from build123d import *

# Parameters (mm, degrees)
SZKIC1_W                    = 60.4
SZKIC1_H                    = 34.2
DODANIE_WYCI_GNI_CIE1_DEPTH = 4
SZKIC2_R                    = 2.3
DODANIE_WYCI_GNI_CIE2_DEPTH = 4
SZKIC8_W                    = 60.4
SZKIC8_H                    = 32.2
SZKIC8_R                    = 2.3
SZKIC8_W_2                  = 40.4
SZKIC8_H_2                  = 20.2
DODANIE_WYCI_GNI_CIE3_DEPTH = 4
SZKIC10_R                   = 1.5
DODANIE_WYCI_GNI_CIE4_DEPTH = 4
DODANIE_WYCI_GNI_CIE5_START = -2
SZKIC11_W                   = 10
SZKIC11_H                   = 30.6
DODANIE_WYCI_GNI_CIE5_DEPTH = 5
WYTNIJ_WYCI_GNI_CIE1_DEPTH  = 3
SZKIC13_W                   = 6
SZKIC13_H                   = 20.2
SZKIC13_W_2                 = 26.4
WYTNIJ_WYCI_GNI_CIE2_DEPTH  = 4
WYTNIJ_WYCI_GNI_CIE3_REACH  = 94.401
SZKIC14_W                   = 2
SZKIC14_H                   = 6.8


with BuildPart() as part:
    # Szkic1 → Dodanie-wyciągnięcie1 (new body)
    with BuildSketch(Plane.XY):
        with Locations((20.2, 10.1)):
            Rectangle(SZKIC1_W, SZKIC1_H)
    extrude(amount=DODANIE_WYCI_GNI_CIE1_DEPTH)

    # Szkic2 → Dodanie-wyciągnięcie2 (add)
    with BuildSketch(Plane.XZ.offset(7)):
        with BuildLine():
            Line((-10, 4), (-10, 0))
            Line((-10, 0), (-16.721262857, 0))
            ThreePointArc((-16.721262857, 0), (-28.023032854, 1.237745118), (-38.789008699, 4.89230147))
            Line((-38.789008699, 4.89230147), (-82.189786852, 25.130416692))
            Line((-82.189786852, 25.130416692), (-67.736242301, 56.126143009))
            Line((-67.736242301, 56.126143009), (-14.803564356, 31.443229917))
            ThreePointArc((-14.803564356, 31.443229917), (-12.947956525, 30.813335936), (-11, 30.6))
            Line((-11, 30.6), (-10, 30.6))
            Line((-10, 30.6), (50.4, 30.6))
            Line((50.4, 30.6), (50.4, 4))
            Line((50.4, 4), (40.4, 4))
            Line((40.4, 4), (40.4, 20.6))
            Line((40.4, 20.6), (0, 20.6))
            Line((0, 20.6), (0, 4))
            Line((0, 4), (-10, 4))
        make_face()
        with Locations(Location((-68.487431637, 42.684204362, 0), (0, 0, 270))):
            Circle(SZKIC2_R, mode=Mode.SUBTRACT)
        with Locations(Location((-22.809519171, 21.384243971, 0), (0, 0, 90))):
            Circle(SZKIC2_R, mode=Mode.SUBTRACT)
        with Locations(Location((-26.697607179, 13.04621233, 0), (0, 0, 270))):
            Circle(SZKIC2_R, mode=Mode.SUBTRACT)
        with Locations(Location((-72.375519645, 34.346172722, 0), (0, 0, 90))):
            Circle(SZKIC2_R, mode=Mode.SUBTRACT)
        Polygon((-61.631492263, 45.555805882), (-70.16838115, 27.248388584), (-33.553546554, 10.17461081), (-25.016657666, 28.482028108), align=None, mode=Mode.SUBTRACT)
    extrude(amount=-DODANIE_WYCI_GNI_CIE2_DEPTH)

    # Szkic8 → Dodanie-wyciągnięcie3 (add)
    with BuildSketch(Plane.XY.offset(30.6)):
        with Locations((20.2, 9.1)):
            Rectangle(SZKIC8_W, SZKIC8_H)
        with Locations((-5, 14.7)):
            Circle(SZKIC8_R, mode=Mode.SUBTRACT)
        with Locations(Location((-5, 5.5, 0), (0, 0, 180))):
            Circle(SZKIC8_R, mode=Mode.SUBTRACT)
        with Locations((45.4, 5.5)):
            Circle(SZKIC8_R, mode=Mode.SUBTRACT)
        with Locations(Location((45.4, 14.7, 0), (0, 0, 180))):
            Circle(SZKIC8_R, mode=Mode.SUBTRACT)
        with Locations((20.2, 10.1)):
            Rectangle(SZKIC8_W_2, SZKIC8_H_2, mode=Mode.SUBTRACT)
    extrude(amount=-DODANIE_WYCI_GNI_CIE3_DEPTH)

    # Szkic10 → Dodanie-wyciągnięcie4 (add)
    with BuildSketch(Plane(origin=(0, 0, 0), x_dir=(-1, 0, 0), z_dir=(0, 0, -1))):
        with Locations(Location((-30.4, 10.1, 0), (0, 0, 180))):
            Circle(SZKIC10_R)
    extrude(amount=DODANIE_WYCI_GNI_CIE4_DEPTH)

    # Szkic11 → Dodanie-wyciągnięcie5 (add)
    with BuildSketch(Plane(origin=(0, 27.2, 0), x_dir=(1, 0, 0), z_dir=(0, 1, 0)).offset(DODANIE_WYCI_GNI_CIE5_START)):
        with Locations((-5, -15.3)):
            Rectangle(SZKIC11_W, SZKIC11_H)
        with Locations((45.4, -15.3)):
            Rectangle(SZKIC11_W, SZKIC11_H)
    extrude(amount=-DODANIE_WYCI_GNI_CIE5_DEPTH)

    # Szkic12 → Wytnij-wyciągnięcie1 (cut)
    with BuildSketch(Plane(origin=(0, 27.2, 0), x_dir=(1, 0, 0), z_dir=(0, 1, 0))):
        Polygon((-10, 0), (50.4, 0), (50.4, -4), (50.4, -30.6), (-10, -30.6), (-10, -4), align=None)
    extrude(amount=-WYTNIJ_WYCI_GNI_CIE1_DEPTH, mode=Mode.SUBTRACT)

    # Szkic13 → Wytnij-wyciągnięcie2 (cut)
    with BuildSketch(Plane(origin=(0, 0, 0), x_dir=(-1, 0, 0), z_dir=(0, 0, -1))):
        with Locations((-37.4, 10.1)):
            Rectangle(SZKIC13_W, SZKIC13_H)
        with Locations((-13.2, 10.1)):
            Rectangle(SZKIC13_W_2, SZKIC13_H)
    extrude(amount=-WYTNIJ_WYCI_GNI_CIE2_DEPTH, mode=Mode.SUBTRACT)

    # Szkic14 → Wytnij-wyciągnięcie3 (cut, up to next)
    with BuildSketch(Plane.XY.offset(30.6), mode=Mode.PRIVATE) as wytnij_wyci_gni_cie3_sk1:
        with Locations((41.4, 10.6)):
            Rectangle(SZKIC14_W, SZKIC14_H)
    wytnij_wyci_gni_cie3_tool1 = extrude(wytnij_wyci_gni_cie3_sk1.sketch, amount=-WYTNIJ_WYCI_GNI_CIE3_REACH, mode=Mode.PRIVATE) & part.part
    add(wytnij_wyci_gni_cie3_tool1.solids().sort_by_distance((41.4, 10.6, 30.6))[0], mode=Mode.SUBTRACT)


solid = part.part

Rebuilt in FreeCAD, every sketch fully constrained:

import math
import FreeCAD as App
import Part
import Sketcher

V = App.Vector
Q = App.Units.Quantity

doc = App.newDocument("Part")
body = doc.addObject("PartDesign::Body", "Body")

# Sketch on XY plane
sketch1 = doc.addObject("Sketcher::SketchObject", "Sketch")
body.addObject(sketch1)
sketch1.AttachmentSupport = (doc.XY_Plane, [""])
sketch1.MapMode = "FlatFace"
sketch1.addGeometry(Part.LineSegment(V(-10, 27.2, 0), V(-10, -7, 0)), False)
sketch1.addGeometry(Part.LineSegment(V(-10, -7, 0), V(50.4, -7, 0)), False)
sketch1.addGeometry(Part.LineSegment(V(50.4, -7, 0), V(50.4, 27.2, 0)), False)
sketch1.addGeometry(Part.LineSegment(V(50.4, 27.2, 0), V(-10, 27.2, 0)), False)
sketch1.addConstraint(Sketcher.Constraint("Coincident", 0, 2, 1, 1))
sketch1.addConstraint(Sketcher.Constraint("Coincident", 1, 2, 2, 1))
sketch1.addConstraint(Sketcher.Constraint("Coincident", 2, 2, 3, 1))
sketch1.addConstraint(Sketcher.Constraint("Coincident", 3, 2, 0, 1))
sketch1.addConstraint(Sketcher.Constraint("Vertical", 0))
sketch1.addConstraint(Sketcher.Constraint("Horizontal", 1))
sketch1.addConstraint(Sketcher.Constraint("Vertical", 2))
sketch1.addConstraint(Sketcher.Constraint("Horizontal", 3))
sketch1.addConstraint(Sketcher.Constraint("DistanceX", 1, 1, 1, 2, 60.4))
sketch1.addConstraint(Sketcher.Constraint("DistanceY", 0, 2, 0, 1, 34.2))
sketch1.addConstraint(Sketcher.Constraint("DistanceX", 0, 2, -1, 1, 10.0))
sketch1.addConstraint(Sketcher.Constraint("DistanceY", 0, 2, -1, 1, 7.0))
pad1 = doc.addObject("PartDesign::Pad", "Pad")
body.addObject(pad1)
pad1.Profile = sketch1
pad1.Length = 4

# Sketch on XZ plane
sketch2 = doc.addObject("Sketcher::SketchObject", "Sketch001")
body.addObject(sketch2)
sketch2.AttachmentSupport = (doc.XZ_Plane, [""])
sketch2.MapMode = "FlatFace"
sketch2.AttachmentOffset = App.Placement(V(0, 0, 7), App.Rotation())
sketch2.addGeometry(Part.LineSegment(V(-10, 0, 0), V(-10, 4, 0)), False)
sketch2.addGeometry(Part.LineSegment(V(-10, 4, 0), V(0, 4, 0)), False)
sketch2.addGeometry(Part.LineSegment(V(0, 4, 0), V(0, 20.6, 0)), False)
sketch2.addGeometry(Part.LineSegment(V(0, 20.6, 0), V(40.4, 20.6, 0)), False)
sketch2.addGeometry(Part.LineSegment(V(40.4, 20.6, 0), V(40.4, 4, 0)), False)
sketch2.addGeometry(Part.LineSegment(V(40.4, 4, 0), V(50.4, 4, 0)), False)
sketch2.addGeometry(Part.LineSegment(V(50.4, 4, 0), V(50.4, 30.6, 0)), False)
sketch2.addGeometry(Part.LineSegment(V(50.4, 30.6, 0), V(-11, 30.6, 0)), False)
sketch2.addGeometry(Part.ArcOfCircle(Part.Circle(V(-11, 39.6, 0), V(0, 0, 1), 9), math.radians(-115), math.radians(-90)), False)
sketch2.addGeometry(Part.LineSegment(V(-14.803564, 31.44323, 0), V(-67.736242, 56.126143, 0)), False)
sketch2.addGeometry(Part.LineSegment(V(-67.736242, 56.126143, 0), V(-82.189787, 25.130417, 0)), False)
sketch2.addGeometry(Part.LineSegment(V(-82.189787, 25.130417, 0), V(-38.789009, 4.892301, 0)), False)
sketch2.addGeometry(Part.ArcOfCircle(Part.Circle(V(-16.721263, 52.216735, 0), V(0, 0, 1), 52.216735), math.radians(-115), math.radians(-90)), False)
sketch2.addGeometry(Part.LineSegment(V(-16.721263, 0, 0), V(-10, 0, 0)), False)
sketch2.addGeometry(Part.Circle(V(-26.697607, 13.046212, 0), V(0, 0, 1), 2.3), False)
sketch2.addGeometry(Part.Circle(V(-22.809519, 21.384244, 0), V(0, 0, 1), 2.3), False)
sketch2.addGeometry(Part.LineSegment(V(-61.631492, 45.555806, 0), V(-25.016658, 28.482028, 0)), False)
sketch2.addGeometry(Part.LineSegment(V(-25.016658, 28.482028, 0), V(-33.553547, 10.174611, 0)), False)
sketch2.addGeometry(Part.LineSegment(V(-33.553547, 10.174611, 0), V(-70.168381, 27.248389, 0)), False)
sketch2.addGeometry(Part.LineSegment(V(-70.168381, 27.248389, 0), V(-61.631492, 45.555806, 0)), False)
sketch2.addGeometry(Part.Circle(V(-72.37552, 34.346173, 0), V(0, 0, 1), 2.3), False)
sketch2.addGeometry(Part.Circle(V(-68.487432, 42.684204, 0), V(0, 0, 1), 2.3), False)
sketch2.addConstraint(Sketcher.Constraint("Coincident", 0, 2, 1, 1))
sketch2.addConstraint(Sketcher.Constraint("Coincident", 1, 2, 2, 1))
sketch2.addConstraint(Sketcher.Constraint("Coincident", 2, 2, 3, 1))
sketch2.addConstraint(Sketcher.Constraint("Coincident", 3, 2, 4, 1))
sketch2.addConstraint(Sketcher.Constraint("Coincident", 4, 2, 5, 1))
sketch2.addConstraint(Sketcher.Constraint("Coincident", 5, 2, 6, 1))
sketch2.addConstraint(Sketcher.Constraint("Coincident", 6, 2, 7, 1))
sketch2.addConstraint(Sketcher.Constraint("Tangent", 7, 2, 8, 2))
sketch2.addConstraint(Sketcher.Constraint("Tangent", 8, 1, 9, 1))
sketch2.addConstraint(Sketcher.Constraint("Coincident", 9, 2, 10, 1))
sketch2.addConstraint(Sketcher.Constraint("Coincident", 10, 2, 11, 1))
sketch2.addConstraint(Sketcher.Constraint("Tangent", 11, 2, 12, 1))
sketch2.addConstraint(Sketcher.Constraint("Tangent", 12, 2, 13, 1))
sketch2.addConstraint(Sketcher.Constraint("Coincident", 13, 2, 0, 1))
sketch2.addConstraint(Sketcher.Constraint("Coincident", 16, 2, 17, 1))
sketch2.addConstraint(Sketcher.Constraint("Coincident", 17, 2, 18, 1))
sketch2.addConstraint(Sketcher.Constraint("Coincident", 18, 2, 19, 1))
sketch2.addConstraint(Sketcher.Constraint("Coincident", 19, 2, 16, 1))
sketch2.addConstraint(Sketcher.Constraint("Vertical", 0))
sketch2.addConstraint(Sketcher.Constraint("Horizontal", 1))
sketch2.addConstraint(Sketcher.Constraint("Vertical", 2))
sketch2.addConstraint(Sketcher.Constraint("Horizontal", 3))
sketch2.addConstraint(Sketcher.Constraint("Vertical", 4))
sketch2.addConstraint(Sketcher.Constraint("Horizontal", 5))
sketch2.addConstraint(Sketcher.Constraint("Vertical", 6))
sketch2.addConstraint(Sketcher.Constraint("Horizontal", 7))
sketch2.addConstraint(Sketcher.Constraint("Horizontal", 13))
sketch2.addConstraint(Sketcher.Constraint("Equal", 14, 15))
sketch2.addConstraint(Sketcher.Constraint("Equal", 15, 20))
sketch2.addConstraint(Sketcher.Constraint("Equal", 20, 21))
sketch2.addConstraint(Sketcher.Constraint("PointOnObject", 1, 2, -2))
sketch2.addConstraint(Sketcher.Constraint("PointOnObject", 12, 2, -1))
sketch2.addConstraint(Sketcher.Constraint("Perpendicular", 9, 10))
sketch2.addConstraint(Sketcher.Constraint("Perpendicular", 10, 11))
sketch2.addConstraint(Sketcher.Constraint("Parallel", 11, 16))
sketch2.addConstraint(Sketcher.Constraint("Perpendicular", 16, 17))
sketch2.addConstraint(Sketcher.Constraint("Perpendicular", 17, 18))
sketch2.addConstraint(Sketcher.Constraint("Perpendicular", 18, 19))
sketch2.addConstraint(Sketcher.Constraint("Horizontal", 1, 2, 4, 2))
sketch2.addConstraint(Sketcher.Constraint("Equal", 1, 5))
sketch2.addConstraint(Sketcher.Constraint("Radius", 8, 9.0))
sketch2.addConstraint(Sketcher.Constraint("Diameter", 14, 4.6))
sketch2.addConstraint(Sketcher.Constraint("DistanceX", 1, 1, 1, 2, 10.0))
sketch2.addConstraint(Sketcher.Constraint("DistanceY", 0, 1, 0, 2, 4.0))
sketch2.addConstraint(Sketcher.Constraint("Angle", 9, Q("155 deg")))
sketch2.addConstraint(Sketcher.Constraint("DistanceX", 3, 1, 3, 2, 40.4))
sketch2.addConstraint(Sketcher.Constraint("DistanceX", 7, 2, 7, 1, 61.4))
sketch2.addConstraint(Sketcher.Constraint("DistanceY", 2, 1, 2, 2, 16.6))
sketch2.addConstraint(Sketcher.Constraint("DistanceY", 6, 1, 6, 2, 26.6))
sketch2.addConstraint(Sketcher.Constraint("Distance", 10, 34.2))
sketch2.addConstraint(Sketcher.Constraint("Distance", 16, 40.4))
sketch2.addConstraint(Sketcher.Constraint("Distance", 17, 20.2))
sketch2.addConstraint(Sketcher.Constraint("Radius", 12, 52.216735))
sketch2.addConstraint(Sketcher.Constraint("DistanceX", 20, 3, 15, 3, 49.566))
sketch2.addConstraint(Sketcher.Constraint("DistanceY", 15, 3, 9, 2, 34.741899))
sketch2.addConstraint(Sketcher.Constraint("DistanceX", 11, 2, 14, 3, 12.091402))
sketch2.addConstraint(Sketcher.Constraint("DistanceY", 16, 2, 8, 1, 2.961202))
sketch2.addConstraint(Sketcher.Constraint("DistanceY", 17, 2, 14, 3, 2.871602))
sketch2.addConstraint(Sketcher.Constraint("DistanceY", 21, 3, 19, 2, 2.871602))
sketch2.addConstraint(Sketcher.Constraint("Distance", 9, 58.404748))
sketch2.addConstraint(Sketcher.Constraint("DistanceX", 15, 3, -1, 1, 22.809519))
sketch2.addConstraint(Sketcher.Constraint("DistanceX", 21, 3, -1, 1, 68.487432))
sketch2.addConstraint(Sketcher.Constraint("DistanceX", 18, 2, -1, 1, 70.168381))
sketch2.addConstraint(Sketcher.Constraint("DistanceY", 14, 3, 20, 3, 21.29996))
pad2 = doc.addObject("PartDesign::Pad", "Pad001")
body.addObject(pad2)
pad2.Profile = sketch2
pad2.Length = 4
pad2.Reversed = True

# Sketch on XY plane
sketch3 = doc.addObject("Sketcher::SketchObject", "Sketch002")
body.addObject(sketch3)
sketch3.AttachmentSupport = (doc.XY_Plane, [""])
sketch3.MapMode = "FlatFace"
sketch3.AttachmentOffset = App.Placement(V(0, 0, 30.6), App.Rotation())
sketch3.addGeometry(Part.LineSegment(V(-10, 25.2, 0), V(-10, -7, 0)), False)
sketch3.addGeometry(Part.LineSegment(V(-10, -7, 0), V(50.4, -7, 0)), False)
sketch3.addGeometry(Part.LineSegment(V(50.4, -7, 0), V(50.4, 25.2, 0)), False)
sketch3.addGeometry(Part.LineSegment(V(50.4, 25.2, 0), V(-10, 25.2, 0)), False)
sketch3.addGeometry(Part.Circle(V(-5, 5.5, 0), V(0, 0, 1), 2.3), False)
sketch3.addGeometry(Part.Circle(V(45.4, 5.5, 0), V(0, 0, 1), 2.3), False)
sketch3.addGeometry(Part.Circle(V(-5, 14.7, 0), V(0, 0, 1), 2.3), False)
sketch3.addGeometry(Part.LineSegment(V(40.4, 0, 0), V(0, 0, 0)), False)
sketch3.addGeometry(Part.LineSegment(V(0, 0, 0), V(0, 20.2, 0)), False)
sketch3.addGeometry(Part.LineSegment(V(0, 20.2, 0), V(40.4, 20.2, 0)), False)
sketch3.addGeometry(Part.LineSegment(V(40.4, 20.2, 0), V(40.4, 0, 0)), False)
sketch3.addGeometry(Part.Circle(V(45.4, 14.7, 0), V(0, 0, 1), 2.3), False)
sketch3.addConstraint(Sketcher.Constraint("Coincident", 0, 2, 1, 1))
sketch3.addConstraint(Sketcher.Constraint("Coincident", 1, 2, 2, 1))
sketch3.addConstraint(Sketcher.Constraint("Coincident", 2, 2, 3, 1))
sketch3.addConstraint(Sketcher.Constraint("Coincident", 3, 2, 0, 1))
sketch3.addConstraint(Sketcher.Constraint("Coincident", 7, 2, 8, 1))
sketch3.addConstraint(Sketcher.Constraint("Coincident", 8, 2, 9, 1))
sketch3.addConstraint(Sketcher.Constraint("Coincident", 9, 2, 10, 1))
sketch3.addConstraint(Sketcher.Constraint("Coincident", 10, 2, 7, 1))
sketch3.addConstraint(Sketcher.Constraint("Vertical", 0))
sketch3.addConstraint(Sketcher.Constraint("Horizontal", 1))
sketch3.addConstraint(Sketcher.Constraint("Vertical", 2))
sketch3.addConstraint(Sketcher.Constraint("Horizontal", 3))
sketch3.addConstraint(Sketcher.Constraint("Horizontal", 7))
sketch3.addConstraint(Sketcher.Constraint("Vertical", 8))
sketch3.addConstraint(Sketcher.Constraint("Horizontal", 9))
sketch3.addConstraint(Sketcher.Constraint("Vertical", 10))
sketch3.addConstraint(Sketcher.Constraint("Coincident", 7, 2, -1, 1))
sketch3.addConstraint(Sketcher.Constraint("Equal", 4, 5))
sketch3.addConstraint(Sketcher.Constraint("Equal", 5, 6))
sketch3.addConstraint(Sketcher.Constraint("Equal", 6, 11))
sketch3.addConstraint(Sketcher.Constraint("Horizontal", 4, 3, 5, 3))
sketch3.addConstraint(Sketcher.Constraint("Horizontal", 6, 3, 11, 3))
sketch3.addConstraint(Sketcher.Constraint("Vertical", 4, 3, 6, 3))
sketch3.addConstraint(Sketcher.Constraint("Vertical", 5, 3, 11, 3))
sketch3.addConstraint(Sketcher.Constraint("Diameter", 4, 4.6))
sketch3.addConstraint(Sketcher.Constraint("DistanceX", 1, 1, 1, 2, 60.4))
sketch3.addConstraint(Sketcher.Constraint("DistanceX", 7, 2, 7, 1, 40.4))
sketch3.addConstraint(Sketcher.Constraint("DistanceY", 0, 2, 0, 1, 32.2))
sketch3.addConstraint(Sketcher.Constraint("DistanceY", 8, 1, 8, 2, 20.2))
sketch3.addConstraint(Sketcher.Constraint("DistanceX", 4, 3, -1, 1, 5.0))
sketch3.addConstraint(Sketcher.Constraint("DistanceX", 0, 2, -1, 1, 10.0))
sketch3.addConstraint(Sketcher.Constraint("DistanceY", 0, 2, -1, 1, 7.0))
sketch3.addConstraint(Sketcher.Constraint("DistanceX", 5, 3, 1, 2, 5.0))
sketch3.addConstraint(Sketcher.Constraint("DistanceY", -1, 1, 4, 3, 5.5))
sketch3.addConstraint(Sketcher.Constraint("DistanceY", -1, 1, 6, 3, 14.7))
pad3 = doc.addObject("PartDesign::Pad", "Pad002")
body.addObject(pad3)
pad3.Profile = sketch3
pad3.Length = 4
pad3.Reversed = True

# Sketch on XY plane
sketch4 = doc.addObject("Sketcher::SketchObject", "Sketch003")
body.addObject(sketch4)
sketch4.AttachmentSupport = (doc.XY_Plane, [""])
sketch4.MapMode = "FlatFace"
sketch4.addGeometry(Part.Circle(V(30.4, 10.1, 0), V(0, 0, 1), 1.5), False)
sketch4.addConstraint(Sketcher.Constraint("Diameter", 0, 3.0))
sketch4.addConstraint(Sketcher.Constraint("DistanceX", -1, 1, 0, 3, 30.4))
sketch4.addConstraint(Sketcher.Constraint("DistanceY", -1, 1, 0, 3, 10.1))
pad4 = doc.addObject("PartDesign::Pad", "Pad003")
body.addObject(pad4)
pad4.Profile = sketch4
pad4.Length = 4
pad4.Reversed = True

# Sketch on XZ plane
sketch5 = doc.addObject("Sketcher::SketchObject", "Sketch004")
body.addObject(sketch5)
sketch5.AttachmentSupport = (doc.XZ_Plane, [""])
sketch5.MapMode = "FlatFace"
sketch5.AttachmentOffset = App.Placement(V(0, 0, -25.2), App.Rotation())
sketch5.addGeometry(Part.LineSegment(V(-10, 0, 0), V(-10, 30.6, 0)), False)
sketch5.addGeometry(Part.LineSegment(V(-10, 30.6, 0), V(0, 30.6, 0)), False)
sketch5.addGeometry(Part.LineSegment(V(0, 30.6, 0), V(0, 0, 0)), False)
sketch5.addGeometry(Part.LineSegment(V(0, 0, 0), V(-10, 0, 0)), False)
sketch5.addGeometry(Part.LineSegment(V(40.4, 0, 0), V(40.4, 30.6, 0)), False)
sketch5.addGeometry(Part.LineSegment(V(40.4, 30.6, 0), V(50.4, 30.6, 0)), False)
sketch5.addGeometry(Part.LineSegment(V(50.4, 30.6, 0), V(50.4, 0, 0)), False)
sketch5.addGeometry(Part.LineSegment(V(50.4, 0, 0), V(40.4, 0, 0)), False)
sketch5.addConstraint(Sketcher.Constraint("Coincident", 0, 2, 1, 1))
sketch5.addConstraint(Sketcher.Constraint("Coincident", 1, 2, 2, 1))
sketch5.addConstraint(Sketcher.Constraint("Coincident", 2, 2, 3, 1))
sketch5.addConstraint(Sketcher.Constraint("Coincident", 3, 2, 0, 1))
sketch5.addConstraint(Sketcher.Constraint("Coincident", 4, 2, 5, 1))
sketch5.addConstraint(Sketcher.Constraint("Coincident", 5, 2, 6, 1))
sketch5.addConstraint(Sketcher.Constraint("Coincident", 6, 2, 7, 1))
sketch5.addConstraint(Sketcher.Constraint("Coincident", 7, 2, 4, 1))
sketch5.addConstraint(Sketcher.Constraint("Vertical", 0))
sketch5.addConstraint(Sketcher.Constraint("Horizontal", 1))
sketch5.addConstraint(Sketcher.Constraint("Vertical", 2))
sketch5.addConstraint(Sketcher.Constraint("Horizontal", 3))
sketch5.addConstraint(Sketcher.Constraint("Vertical", 4))
sketch5.addConstraint(Sketcher.Constraint("Horizontal", 5))
sketch5.addConstraint(Sketcher.Constraint("Vertical", 6))
sketch5.addConstraint(Sketcher.Constraint("Horizontal", 7))
sketch5.addConstraint(Sketcher.Constraint("Coincident", 2, 2, -1, 1))
sketch5.addConstraint(Sketcher.Constraint("PointOnObject", 6, 2, -1))
sketch5.addConstraint(Sketcher.Constraint("Horizontal", 1, 2, 4, 2))
sketch5.addConstraint(Sketcher.Constraint("Equal", 3, 5))
sketch5.addConstraint(Sketcher.Constraint("DistanceX", 1, 1, 1, 2, 10.0))
sketch5.addConstraint(Sketcher.Constraint("DistanceY", 0, 1, 0, 2, 30.6))
sketch5.addConstraint(Sketcher.Constraint("DistanceX", -1, 1, 4, 2, 40.4))
pad5 = doc.addObject("PartDesign::Pad", "Pad004")
body.addObject(pad5)
pad5.Profile = sketch5
pad5.Length = 5

# Sketch on XZ plane
sketch6 = doc.addObject("Sketcher::SketchObject", "Sketch005")
body.addObject(sketch6)
sketch6.AttachmentSupport = (doc.XZ_Plane, [""])
sketch6.MapMode = "FlatFace"
sketch6.AttachmentOffset = App.Placement(V(0, 0, -27.2), App.Rotation())
sketch6.addGeometry(Part.LineSegment(V(50.4, 0, 0), V(-10, 0, 0)), False)
sketch6.addGeometry(Part.LineSegment(V(-10, 0, 0), V(-10, 30.6, 0)), False)
sketch6.addGeometry(Part.LineSegment(V(-10, 30.6, 0), V(50.4, 30.6, 0)), False)
sketch6.addGeometry(Part.LineSegment(V(50.4, 30.6, 0), V(50.4, 0, 0)), False)
sketch6.addConstraint(Sketcher.Constraint("Coincident", 0, 2, 1, 1))
sketch6.addConstraint(Sketcher.Constraint("Coincident", 1, 2, 2, 1))
sketch6.addConstraint(Sketcher.Constraint("Coincident", 2, 2, 3, 1))
sketch6.addConstraint(Sketcher.Constraint("Coincident", 3, 2, 0, 1))
sketch6.addConstraint(Sketcher.Constraint("Horizontal", 0))
sketch6.addConstraint(Sketcher.Constraint("Vertical", 1))
sketch6.addConstraint(Sketcher.Constraint("Horizontal", 2))
sketch6.addConstraint(Sketcher.Constraint("Vertical", 3))
sketch6.addConstraint(Sketcher.Constraint("PointOnObject", 0, 2, -1))
sketch6.addConstraint(Sketcher.Constraint("DistanceX", 0, 2, 0, 1, 60.4))
sketch6.addConstraint(Sketcher.Constraint("DistanceY", 1, 1, 1, 2, 30.6))
sketch6.addConstraint(Sketcher.Constraint("DistanceX", 0, 2, -1, 1, 10.0))
pocket1 = doc.addObject("PartDesign::Pocket", "Pocket")
body.addObject(pocket1)
pocket1.Profile = sketch6
pocket1.Length = 3
pocket1.Reversed = True

# Sketch on XY plane
sketch7 = doc.addObject("Sketcher::SketchObject", "Sketch006")
body.addObject(sketch7)
sketch7.AttachmentSupport = (doc.XY_Plane, [""])
sketch7.MapMode = "FlatFace"
sketch7.addGeometry(Part.LineSegment(V(40.4, 20.2, 0), V(40.4, 0, 0)), False)
sketch7.addGeometry(Part.LineSegment(V(40.4, 0, 0), V(34.4, 0, 0)), False)
sketch7.addGeometry(Part.LineSegment(V(34.4, 0, 0), V(34.4, 20.2, 0)), False)
sketch7.addGeometry(Part.LineSegment(V(34.4, 20.2, 0), V(40.4, 20.2, 0)), False)
sketch7.addGeometry(Part.LineSegment(V(26.4, 20.2, 0), V(26.4, 0, 0)), False)
sketch7.addGeometry(Part.LineSegment(V(26.4, 0, 0), V(0, 0, 0)), False)
sketch7.addGeometry(Part.LineSegment(V(0, 0, 0), V(0, 20.2, 0)), False)
sketch7.addGeometry(Part.LineSegment(V(0, 20.2, 0), V(26.4, 20.2, 0)), False)
sketch7.addConstraint(Sketcher.Constraint("Coincident", 0, 2, 1, 1))
sketch7.addConstraint(Sketcher.Constraint("Coincident", 1, 2, 2, 1))
sketch7.addConstraint(Sketcher.Constraint("Coincident", 2, 2, 3, 1))
sketch7.addConstraint(Sketcher.Constraint("Coincident", 3, 2, 0, 1))
sketch7.addConstraint(Sketcher.Constraint("Coincident", 4, 2, 5, 1))
sketch7.addConstraint(Sketcher.Constraint("Coincident", 5, 2, 6, 1))
sketch7.addConstraint(Sketcher.Constraint("Coincident", 6, 2, 7, 1))
sketch7.addConstraint(Sketcher.Constraint("Coincident", 7, 2, 4, 1))
sketch7.addConstraint(Sketcher.Constraint("Vertical", 0))
sketch7.addConstraint(Sketcher.Constraint("Horizontal", 1))
sketch7.addConstraint(Sketcher.Constraint("Vertical", 2))
sketch7.addConstraint(Sketcher.Constraint("Horizontal", 3))
sketch7.addConstraint(Sketcher.Constraint("Vertical", 4))
sketch7.addConstraint(Sketcher.Constraint("Horizontal", 5))
sketch7.addConstraint(Sketcher.Constraint("Vertical", 6))
sketch7.addConstraint(Sketcher.Constraint("Horizontal", 7))
sketch7.addConstraint(Sketcher.Constraint("Coincident", 5, 2, -1, 1))
sketch7.addConstraint(Sketcher.Constraint("PointOnObject", 0, 2, -1))
sketch7.addConstraint(Sketcher.Constraint("Horizontal", 3, 2, 6, 2))
sketch7.addConstraint(Sketcher.Constraint("DistanceX", 1, 2, 1, 1, 6.0))
sketch7.addConstraint(Sketcher.Constraint("DistanceX", 5, 2, 5, 1, 26.4))
sketch7.addConstraint(Sketcher.Constraint("DistanceY", 0, 2, 0, 1, 20.2))
sketch7.addConstraint(Sketcher.Constraint("DistanceX", 4, 2, 1, 2, 8.0))
pocket2 = doc.addObject("PartDesign::Pocket", "Pocket001")
body.addObject(pocket2)
pocket2.Profile = sketch7
pocket2.Length = 4
pocket2.Reversed = True

# Sketch on XY plane
sketch8 = doc.addObject("Sketcher::SketchObject", "Sketch007")
body.addObject(sketch8)
sketch8.AttachmentSupport = (doc.XY_Plane, [""])
sketch8.MapMode = "FlatFace"
sketch8.AttachmentOffset = App.Placement(V(0, 0, 30.6), App.Rotation())
sketch8.addGeometry(Part.LineSegment(V(40.4, 14, 0), V(40.4, 7.2, 0)), False)
sketch8.addGeometry(Part.LineSegment(V(40.4, 7.2, 0), V(42.4, 7.2, 0)), False)
sketch8.addGeometry(Part.LineSegment(V(42.4, 7.2, 0), V(42.4, 14, 0)), False)
sketch8.addGeometry(Part.LineSegment(V(42.4, 14, 0), V(40.4, 14, 0)), False)
sketch8.addConstraint(Sketcher.Constraint("Coincident", 0, 2, 1, 1))
sketch8.addConstraint(Sketcher.Constraint("Coincident", 1, 2, 2, 1))
sketch8.addConstraint(Sketcher.Constraint("Coincident", 2, 2, 3, 1))
sketch8.addConstraint(Sketcher.Constraint("Coincident", 3, 2, 0, 1))
sketch8.addConstraint(Sketcher.Constraint("Vertical", 0))
sketch8.addConstraint(Sketcher.Constraint("Horizontal", 1))
sketch8.addConstraint(Sketcher.Constraint("Vertical", 2))
sketch8.addConstraint(Sketcher.Constraint("Horizontal", 3))
sketch8.addConstraint(Sketcher.Constraint("DistanceX", 1, 1, 1, 2, 2.0))
sketch8.addConstraint(Sketcher.Constraint("DistanceY", 0, 2, 0, 1, 6.8))
sketch8.addConstraint(Sketcher.Constraint("DistanceY", -1, 1, 2, 2, 14.0))
sketch8.addConstraint(Sketcher.Constraint("DistanceX", -1, 1, 0, 2, 40.4))
pocket3 = doc.addObject("PartDesign::Pocket", "Pocket002")
body.addObject(pocket3)
pocket3.Profile = sketch8
pocket3.Type = "UpToFirst"

doc.recompute()
